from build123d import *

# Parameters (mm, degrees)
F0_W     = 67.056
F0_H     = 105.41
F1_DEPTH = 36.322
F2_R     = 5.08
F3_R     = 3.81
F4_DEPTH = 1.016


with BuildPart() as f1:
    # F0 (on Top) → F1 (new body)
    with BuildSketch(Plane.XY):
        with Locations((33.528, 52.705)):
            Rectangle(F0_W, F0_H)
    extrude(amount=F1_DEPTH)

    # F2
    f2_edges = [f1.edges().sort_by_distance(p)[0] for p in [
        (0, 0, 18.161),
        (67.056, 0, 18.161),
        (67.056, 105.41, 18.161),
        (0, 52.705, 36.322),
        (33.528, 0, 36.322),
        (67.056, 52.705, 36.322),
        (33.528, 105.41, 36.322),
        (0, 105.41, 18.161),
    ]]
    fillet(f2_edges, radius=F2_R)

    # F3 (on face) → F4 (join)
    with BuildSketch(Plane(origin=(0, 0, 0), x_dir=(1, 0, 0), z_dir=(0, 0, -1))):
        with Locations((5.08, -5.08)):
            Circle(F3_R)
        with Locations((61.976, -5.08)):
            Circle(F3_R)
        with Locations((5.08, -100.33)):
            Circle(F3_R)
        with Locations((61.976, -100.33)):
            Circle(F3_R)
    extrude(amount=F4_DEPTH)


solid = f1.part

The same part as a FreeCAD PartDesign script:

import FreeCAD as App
import Part
import Sketcher
Q = App.Units.Quantity


def edges_at(feature, points):
    """Names of the edges that pass closest to the given points."""
    edges = feature.Shape.Edges
    near = lambda p: min(range(len(edges)), key=lambda i: edges[i].distToShape(Part.Vertex(*p))[0])
    return sorted({f"Edge{near(p) + 1}" for p in points})


def add_polygon(sketch, points):
    """Adds a closed chain of lines whose ends are joined by coincident constraints."""
    first, n = sketch.GeometryCount, len(points)
    for a, b in zip(points, points[1:] + points[:1]):
        sketch.addGeometry(Part.LineSegment(App.Vector(*a, 0), App.Vector(*b, 0)), False)
    for i in range(n):
        sketch.addConstraint(Sketcher.Constraint("Coincident", first + i, 2, first + (i + 1) % n, 1))

doc = App.newDocument("Part")
body = doc.addObject("PartDesign::Body", "Body")

# Sketch on XY plane
sketch1 = body.newObject("Sketcher::SketchObject", "Sketch")
sketch1.AttachmentSupport = (doc.getObject("XY_Plane"), [""])
sketch1.MapMode = "FlatFace"
add_polygon(sketch1, [(0, 105.41), (0, 0), (67.056, 0), (67.056, 105.41)])  # lines 0-3
sketch1.addConstraint(Sketcher.Constraint("Vertical", 0))
sketch1.addConstraint(Sketcher.Constraint("Horizontal", 1))
sketch1.addConstraint(Sketcher.Constraint("Vertical", 2))
sketch1.addConstraint(Sketcher.Constraint("Horizontal", 3))
sketch1.addConstraint(Sketcher.Constraint("Coincident", 0, 2, -1, 1))
sketch1.addConstraint(Sketcher.Constraint("DistanceX", 1, 1, 1, 2, Q("2.64 in")))
sketch1.addConstraint(Sketcher.Constraint("DistanceY", 0, 2, 0, 1, Q("4.15 in")))
pad1 = body.newObject("PartDesign::Pad", "Pad")
pad1.Profile = sketch1
pad1.Length = Q("1.43 in")
doc.recompute()

fillet = body.newObject("PartDesign::Fillet", "Fillet")
fillet.Base = (pad1, edges_at(pad1, [
    (0, 0, 18.161),
    (67.056, 0, 18.161),
    (67.056, 105.41, 18.161),
    (0, 52.705, 36.322),
    (33.528, 0, 36.322),
    (67.056, 52.705, 36.322),
    (33.528, 105.41, 36.322),
    (0, 105.41, 18.161),
]))
fillet.Radius = Q("0.2 in")

# Sketch on XY plane
sketch2 = body.newObject("Sketcher::SketchObject", "Sketch001")
sketch2.AttachmentSupport = (doc.getObject("XY_Plane"), [""])
sketch2.MapMode = "FlatFace"
sketch2.addGeometry(Part.Circle(App.Vector(5.08, 5.08, 0), App.Vector(0, 0, 1), 3.81), False)
sketch2.addGeometry(Part.Circle(App.Vector(61.976, 5.08, 0), App.Vector(0, 0, 1), 3.81), False)
sketch2.addGeometry(Part.Circle(App.Vector(5.08, 100.33, 0), App.Vector(0, 0, 1), 3.81), False)
sketch2.addGeometry(Part.Circle(App.Vector(61.976, 100.33, 0), App.Vector(0, 0, 1), 3.81), False)
sketch2.addConstraint(Sketcher.Constraint("Equal", 0, 1))
sketch2.addConstraint(Sketcher.Constraint("Equal", 1, 2))
sketch2.addConstraint(Sketcher.Constraint("Equal", 2, 3))
sketch2.addConstraint(Sketcher.Constraint("Horizontal", 0, 3, 1, 3))
sketch2.addConstraint(Sketcher.Constraint("Horizontal", 2, 3, 3, 3))
sketch2.addConstraint(Sketcher.Constraint("Vertical", 0, 3, 2, 3))
sketch2.addConstraint(Sketcher.Constraint("Vertical", 1, 3, 3, 3))
sketch2.addConstraint(Sketcher.Constraint("Diameter", 0, Q("0.3 in")))
sketch2.addConstraint(Sketcher.Constraint("DistanceX", -1, 1, 0, 3, Q("0.2 in")))
sketch2.addConstraint(Sketcher.Constraint("DistanceY", -1, 1, 0, 3, Q("0.2 in")))
sketch2.addConstraint(Sketcher.Constraint("DistanceX", -1, 1, 1, 3, Q("2.44 in")))
sketch2.addConstraint(Sketcher.Constraint("DistanceY", -1, 1, 2, 3, Q("3.95 in")))
pad2 = body.newObject("PartDesign::Pad", "Pad001")
pad2.Profile = sketch2
pad2.Length = Q("0.04 in")
pad2.Reversed = True

doc.recompute()
